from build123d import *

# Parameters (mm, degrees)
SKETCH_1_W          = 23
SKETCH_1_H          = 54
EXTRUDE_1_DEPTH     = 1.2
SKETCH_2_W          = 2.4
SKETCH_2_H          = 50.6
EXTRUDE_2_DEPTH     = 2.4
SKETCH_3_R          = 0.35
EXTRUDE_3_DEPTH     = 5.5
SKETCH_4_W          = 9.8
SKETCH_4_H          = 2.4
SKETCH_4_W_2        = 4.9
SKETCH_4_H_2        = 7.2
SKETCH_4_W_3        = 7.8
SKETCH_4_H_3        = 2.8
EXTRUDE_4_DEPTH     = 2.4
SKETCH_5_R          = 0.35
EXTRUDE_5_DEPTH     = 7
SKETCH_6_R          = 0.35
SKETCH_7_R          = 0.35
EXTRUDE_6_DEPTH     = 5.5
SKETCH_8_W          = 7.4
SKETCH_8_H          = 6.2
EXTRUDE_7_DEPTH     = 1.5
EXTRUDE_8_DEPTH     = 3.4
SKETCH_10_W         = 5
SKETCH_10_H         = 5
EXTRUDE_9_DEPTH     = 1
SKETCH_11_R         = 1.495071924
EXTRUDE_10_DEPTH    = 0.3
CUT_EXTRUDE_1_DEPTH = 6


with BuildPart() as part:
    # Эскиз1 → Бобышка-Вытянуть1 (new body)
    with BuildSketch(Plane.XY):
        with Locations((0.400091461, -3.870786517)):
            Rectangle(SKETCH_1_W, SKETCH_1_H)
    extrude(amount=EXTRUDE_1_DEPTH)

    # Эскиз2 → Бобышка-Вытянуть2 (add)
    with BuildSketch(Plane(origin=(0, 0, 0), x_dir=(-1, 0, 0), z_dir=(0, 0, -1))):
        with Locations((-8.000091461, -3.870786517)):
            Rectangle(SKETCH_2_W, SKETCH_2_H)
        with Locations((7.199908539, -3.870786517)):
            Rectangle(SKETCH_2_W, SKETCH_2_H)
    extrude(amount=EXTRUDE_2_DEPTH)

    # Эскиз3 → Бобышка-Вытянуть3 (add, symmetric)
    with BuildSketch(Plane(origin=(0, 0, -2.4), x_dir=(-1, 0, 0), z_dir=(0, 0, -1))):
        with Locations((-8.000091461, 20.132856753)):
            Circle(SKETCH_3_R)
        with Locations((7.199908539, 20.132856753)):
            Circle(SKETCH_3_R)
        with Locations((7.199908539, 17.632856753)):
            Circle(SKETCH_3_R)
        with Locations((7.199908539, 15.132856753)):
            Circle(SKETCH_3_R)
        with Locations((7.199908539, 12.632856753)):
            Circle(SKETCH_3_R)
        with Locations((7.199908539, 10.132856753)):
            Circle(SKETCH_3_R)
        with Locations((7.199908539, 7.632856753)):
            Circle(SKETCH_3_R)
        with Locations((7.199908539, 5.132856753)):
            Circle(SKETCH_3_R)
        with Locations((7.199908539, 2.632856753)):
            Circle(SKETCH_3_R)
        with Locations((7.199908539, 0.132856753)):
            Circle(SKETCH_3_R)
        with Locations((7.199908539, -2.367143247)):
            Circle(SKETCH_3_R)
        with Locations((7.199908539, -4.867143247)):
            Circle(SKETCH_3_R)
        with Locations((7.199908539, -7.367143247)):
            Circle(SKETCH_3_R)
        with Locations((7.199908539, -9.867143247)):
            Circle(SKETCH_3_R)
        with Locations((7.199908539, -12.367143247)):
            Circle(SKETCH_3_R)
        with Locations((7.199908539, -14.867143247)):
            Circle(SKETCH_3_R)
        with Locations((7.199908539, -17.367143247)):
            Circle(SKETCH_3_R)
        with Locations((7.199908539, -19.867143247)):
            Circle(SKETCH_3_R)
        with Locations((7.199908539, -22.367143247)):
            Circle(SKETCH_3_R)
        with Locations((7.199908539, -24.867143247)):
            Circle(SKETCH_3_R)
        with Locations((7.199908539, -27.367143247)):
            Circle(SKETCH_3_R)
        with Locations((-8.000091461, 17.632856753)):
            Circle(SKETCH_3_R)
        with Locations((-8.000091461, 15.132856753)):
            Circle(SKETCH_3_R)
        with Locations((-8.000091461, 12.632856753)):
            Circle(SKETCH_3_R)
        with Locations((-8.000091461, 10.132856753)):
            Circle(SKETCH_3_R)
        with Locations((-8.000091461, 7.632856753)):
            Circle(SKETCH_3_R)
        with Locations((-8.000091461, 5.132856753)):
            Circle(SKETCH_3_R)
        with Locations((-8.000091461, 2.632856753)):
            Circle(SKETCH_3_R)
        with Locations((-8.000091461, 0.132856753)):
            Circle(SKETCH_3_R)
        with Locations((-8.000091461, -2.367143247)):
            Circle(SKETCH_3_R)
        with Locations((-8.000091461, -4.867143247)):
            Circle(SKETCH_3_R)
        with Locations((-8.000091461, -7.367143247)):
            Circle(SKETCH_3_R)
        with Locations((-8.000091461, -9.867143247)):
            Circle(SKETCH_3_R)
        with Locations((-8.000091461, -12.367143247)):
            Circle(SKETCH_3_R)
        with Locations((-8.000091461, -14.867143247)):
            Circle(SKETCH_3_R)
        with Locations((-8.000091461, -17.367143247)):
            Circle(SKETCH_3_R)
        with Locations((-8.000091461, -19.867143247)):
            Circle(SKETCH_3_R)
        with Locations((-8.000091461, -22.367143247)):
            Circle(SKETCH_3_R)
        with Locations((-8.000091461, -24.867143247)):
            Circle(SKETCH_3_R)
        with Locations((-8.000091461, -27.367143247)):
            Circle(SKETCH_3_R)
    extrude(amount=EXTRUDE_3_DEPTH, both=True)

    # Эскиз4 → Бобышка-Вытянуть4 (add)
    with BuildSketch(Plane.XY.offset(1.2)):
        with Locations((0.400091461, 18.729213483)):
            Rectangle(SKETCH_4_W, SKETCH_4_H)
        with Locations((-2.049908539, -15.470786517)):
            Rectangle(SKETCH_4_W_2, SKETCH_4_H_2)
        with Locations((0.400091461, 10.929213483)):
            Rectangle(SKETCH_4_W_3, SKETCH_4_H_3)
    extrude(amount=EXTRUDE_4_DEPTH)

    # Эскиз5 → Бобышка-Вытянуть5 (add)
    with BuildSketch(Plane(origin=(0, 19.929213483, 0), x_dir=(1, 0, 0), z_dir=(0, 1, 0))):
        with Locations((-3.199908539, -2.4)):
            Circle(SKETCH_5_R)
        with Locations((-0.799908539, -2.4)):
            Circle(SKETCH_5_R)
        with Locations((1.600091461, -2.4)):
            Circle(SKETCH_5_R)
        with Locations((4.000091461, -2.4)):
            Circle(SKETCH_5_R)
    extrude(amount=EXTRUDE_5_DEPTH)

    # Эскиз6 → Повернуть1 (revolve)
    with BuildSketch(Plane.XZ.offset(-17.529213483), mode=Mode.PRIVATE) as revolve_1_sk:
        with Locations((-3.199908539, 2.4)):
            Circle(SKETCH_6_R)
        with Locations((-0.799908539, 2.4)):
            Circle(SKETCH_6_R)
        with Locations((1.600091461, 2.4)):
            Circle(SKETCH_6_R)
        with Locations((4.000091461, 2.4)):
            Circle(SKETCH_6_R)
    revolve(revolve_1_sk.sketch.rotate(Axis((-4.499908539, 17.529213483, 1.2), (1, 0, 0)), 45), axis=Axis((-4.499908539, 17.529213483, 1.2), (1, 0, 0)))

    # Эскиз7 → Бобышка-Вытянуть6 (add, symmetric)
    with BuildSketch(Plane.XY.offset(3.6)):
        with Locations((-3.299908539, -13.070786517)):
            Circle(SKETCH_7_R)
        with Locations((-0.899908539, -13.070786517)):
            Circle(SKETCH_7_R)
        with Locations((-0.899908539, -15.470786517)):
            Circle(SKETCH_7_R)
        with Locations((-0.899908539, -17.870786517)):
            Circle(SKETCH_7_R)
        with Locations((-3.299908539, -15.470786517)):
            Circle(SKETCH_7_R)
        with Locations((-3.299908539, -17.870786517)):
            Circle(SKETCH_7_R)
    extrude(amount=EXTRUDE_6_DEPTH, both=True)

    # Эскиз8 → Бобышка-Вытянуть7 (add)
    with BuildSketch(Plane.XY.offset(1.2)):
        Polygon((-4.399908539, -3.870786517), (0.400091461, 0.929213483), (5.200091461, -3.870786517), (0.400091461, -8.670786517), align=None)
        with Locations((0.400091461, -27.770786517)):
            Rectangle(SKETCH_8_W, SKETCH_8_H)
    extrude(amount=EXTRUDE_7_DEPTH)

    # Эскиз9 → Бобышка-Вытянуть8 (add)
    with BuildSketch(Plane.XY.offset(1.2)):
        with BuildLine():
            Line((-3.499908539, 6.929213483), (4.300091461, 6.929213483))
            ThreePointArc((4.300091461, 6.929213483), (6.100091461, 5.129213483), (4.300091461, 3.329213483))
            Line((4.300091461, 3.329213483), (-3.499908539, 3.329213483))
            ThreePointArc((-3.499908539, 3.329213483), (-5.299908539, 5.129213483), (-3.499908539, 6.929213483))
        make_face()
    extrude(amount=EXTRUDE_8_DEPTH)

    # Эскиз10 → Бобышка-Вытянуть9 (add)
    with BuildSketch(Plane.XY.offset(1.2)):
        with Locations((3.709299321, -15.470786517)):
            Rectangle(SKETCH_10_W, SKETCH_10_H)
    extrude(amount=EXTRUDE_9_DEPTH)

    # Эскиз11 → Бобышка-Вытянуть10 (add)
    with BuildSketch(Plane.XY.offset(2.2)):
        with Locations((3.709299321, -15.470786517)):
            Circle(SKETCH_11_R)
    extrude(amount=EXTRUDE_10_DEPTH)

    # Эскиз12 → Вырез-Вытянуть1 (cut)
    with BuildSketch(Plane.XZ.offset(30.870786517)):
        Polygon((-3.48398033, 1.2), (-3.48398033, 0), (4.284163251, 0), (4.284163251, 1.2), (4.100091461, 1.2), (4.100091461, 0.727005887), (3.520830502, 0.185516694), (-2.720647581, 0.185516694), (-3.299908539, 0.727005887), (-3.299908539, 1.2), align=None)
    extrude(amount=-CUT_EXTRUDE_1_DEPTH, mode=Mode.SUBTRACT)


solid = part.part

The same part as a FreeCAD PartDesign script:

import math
import FreeCAD as App
import Part
import Sketcher

V = App.Vector
Q = App.Units.Quantity


def add_polygon(sketch, points):
    """Adds a closed chain of lines whose ends are joined by coincident constraints."""
    first, n = sketch.GeometryCount, len(points)
    for a, b in zip(points, points[1:] + points[:1]):
        sketch.addGeometry(Part.LineSegment(App.Vector(*a, 0), App.Vector(*b, 0)), False)
    for i in range(n):
        sketch.addConstraint(Sketcher.Constraint("Coincident", first + i, 2, first + (i + 1) % n, 1))

doc = App.newDocument("Part")
body = doc.addObject("PartDesign::Body", "Body")

sketch1 = body.newObject("Sketcher::SketchObject", "Sketch")
sketch1.AttachmentSupport = (doc.getObject("XY_Plane"), [""])
sketch1.MapMode = "FlatFace"
add_polygon(sketch1, [(-11, 23), (-11, -31), (12, -31), (12, 23)])
sketch1.addConstraint([
    Sketcher.Constraint("Vertical", 0),
    Sketcher.Constraint("Horizontal", 1),
    Sketcher.Constraint("Vertical", 2),
    Sketcher.Constraint("Horizontal", 3),
    Sketcher.Constraint("DistanceX", 1, 1, 1, 2, Q("23 mm")),
    Sketcher.Constraint("DistanceY", 0, 2, 0, 1, Q("54 mm")),
    Sketcher.Constraint("DistanceX", 0, 2, -1, 1, Q("11.099909 mm")),
    Sketcher.Constraint("DistanceY", 0, 2, -1, 1, Q("30.870787 mm")),
])
pad1 = body.newObject("PartDesign::Pad", "Pad")
pad1.Profile = sketch1
pad1.Length = 1.2

sketch2 = body.newObject("Sketcher::SketchObject", "Sketch001")
sketch2.AttachmentSupport = (doc.getObject("XY_Plane"), [""])
sketch2.MapMode = "FlatFace"
add_polygon(sketch2, [(9.2, 21.4), (9.2, -29.2), (6.8, -29.2), (6.8, 21.4)])
add_polygon(sketch2, [(-6, 21.4), (-6, -29.2), (-8.4, -29.2), (-8.4, 21.4)])
sketch2.addConstraint([
    Sketcher.Constraint("Vertical", 0),
    Sketcher.Constraint("Horizontal", 1),
    Sketcher.Constraint("Vertical", 2),
    Sketcher.Constraint("Horizontal", 3),
    Sketcher.Constraint("Vertical", 4),
    Sketcher.Constraint("Horizontal", 5),
    Sketcher.Constraint("Vertical", 6),
    Sketcher.Constraint("Horizontal", 7),
    Sketcher.Constraint("Horizontal", 1, 2, 4, 2),
    Sketcher.Constraint("Horizontal", 3, 2, 6, 2),
    Sketcher.Constraint("Equal", 3, 5),
    Sketcher.Constraint("DistanceX", 1, 2, 1, 1, Q("2.4 mm")),
    Sketcher.Constraint("DistanceY", 0, 2, 0, 1, Q("50.6 mm")),
    Sketcher.Constraint("DistanceX", 4, 2, 1, 2, Q("12.8 mm")),
    Sketcher.Constraint("DistanceX", -1, 1, 0, 2, Q("9.200091 mm")),
    Sketcher.Constraint("DistanceY", 0, 2, -1, 1, Q("29.170787 mm")),
])
pad2 = body.newObject("PartDesign::Pad", "Pad001")
pad2.Profile = sketch2
pad2.Length = 2.4
pad2.Reversed = True

sketch3 = body.newObject("Sketcher::SketchObject", "Sketch002")
sketch3.AttachmentSupport = (doc.getObject("XY_Plane"), [""])
sketch3.MapMode = "FlatFace"
sketch3.AttachmentOffset = App.Placement(V(0, 0, -2.4), App.Rotation())
sketch3.addGeometry([
    Part.Circle(V(8, 20.13, 0), V(0, 0, 1), 0.35),
    Part.Circle(V(-7.2, 20.13, 0), V(0, 0, 1), 0.35),
    Part.Circle(V(-7.2, 17.63, 0), V(0, 0, 1), 0.35),
    Part.Circle(V(-7.2, 15.13, 0), V(0, 0, 1), 0.35),
    Part.Circle(V(-7.2, 12.63, 0), V(0, 0, 1), 0.35),
    Part.Circle(V(-7.2, 10.13, 0), V(0, 0, 1), 0.35),
    Part.Circle(V(-7.2, 7.63, 0), V(0, 0, 1), 0.35),
    Part.Circle(V(-7.2, 5.13, 0), V(0, 0, 1), 0.35),
    Part.Circle(V(-7.2, 2.63, 0), V(0, 0, 1), 0.35),
    Part.Circle(V(-7.2, 0.13, 0), V(0, 0, 1), 0.35),
    Part.Circle(V(-7.2, -2.37, 0), V(0, 0, 1), 0.35),
    Part.Circle(V(-7.2, -4.87, 0), V(0, 0, 1), 0.35),
    Part.Circle(V(-7.2, -7.37, 0), V(0, 0, 1), 0.35),
    Part.Circle(V(-7.2, -9.87, 0), V(0, 0, 1), 0.35),
    Part.Circle(V(-7.2, -12.37, 0), V(0, 0, 1), 0.35),
    Part.Circle(V(-7.2, -14.87, 0), V(0, 0, 1), 0.35),
    Part.Circle(V(-7.2, -17.37, 0), V(0, 0, 1), 0.35),
    Part.Circle(V(-7.2, -19.87, 0), V(0, 0, 1), 0.35),
    Part.Circle(V(-7.2, -22.37, 0), V(0, 0, 1), 0.35),
    Part.Circle(V(-7.2, -24.87, 0), V(0, 0, 1), 0.35),
    Part.Circle(V(-7.2, -27.37, 0), V(0, 0, 1), 0.35),
    Part.Circle(V(8, 17.63, 0), V(0, 0, 1), 0.35),
    Part.Circle(V(8, 15.13, 0), V(0, 0, 1), 0.35),
    Part.Circle(V(8, 12.63, 0), V(0, 0, 1), 0.35),
    Part.Circle(V(8, 10.13, 0), V(0, 0, 1), 0.35),
    Part.Circle(V(8, 7.63, 0), V(0, 0, 1), 0.35),
    Part.Circle(V(8, 5.13, 0), V(0, 0, 1), 0.35),
    Part.Circle(V(8, 2.63, 0), V(0, 0, 1), 0.35),
    Part.Circle(V(8, 0.13, 0), V(0, 0, 1), 0.35),
    Part.Circle(V(8, -2.37, 0), V(0, 0, 1), 0.35),
    Part.Circle(V(8, -4.87, 0), V(0, 0, 1), 0.35),
    Part.Circle(V(8, -7.37, 0), V(0, 0, 1), 0.35),
    Part.Circle(V(8, -9.87, 0), V(0, 0, 1), 0.35),
    Part.Circle(V(8, -12.37, 0), V(0, 0, 1), 0.35),
    Part.Circle(V(8, -14.87, 0), V(0, 0, 1), 0.35),
    Part.Circle(V(8, -17.37, 0), V(0, 0, 1), 0.35),
    Part.Circle(V(8, -19.87, 0), V(0, 0, 1), 0.35),
    Part.Circle(V(8, -22.37, 0), V(0, 0, 1), 0.35),
    Part.Circle(V(8, -24.87, 0), V(0, 0, 1), 0.35),
    Part.Circle(V(8, -27.37, 0), V(0, 0, 1), 0.35),
], False)
sketch3.addConstraint([
    Sketcher.Constraint("Equal", 0, 1),
    Sketcher.Constraint("Equal", 1, 2),
    Sketcher.Constraint("Equal", 2, 3),
    Sketcher.Constraint("Equal", 3, 4),
    Sketcher.Constraint("Equal", 4, 5),
    Sketcher.Constraint("Equal", 5, 6),
    Sketcher.Constraint("Equal", 6, 7),
    Sketcher.Constraint("Equal", 7, 8),
    Sketcher.Constraint("Equal", 8, 9),
    Sketcher.Constraint("Equal", 9, 10),
    Sketcher.Constraint("Equal", 10, 11),
    Sketcher.Constraint("Equal", 11, 12),
    Sketcher.Constraint("Equal", 12, 13),
    Sketcher.Constraint("Equal", 13, 14),
    Sketcher.Constraint("Equal", 14, 15),
    Sketcher.Constraint("Equal", 15, 16),
    Sketcher.Constraint("Equal", 16, 17),
    Sketcher.Constraint("Equal", 17, 18),
    Sketcher.Constraint("Equal", 18, 19),
    Sketcher.Constraint("Equal", 19, 20),
    Sketcher.Constraint("Equal", 20, 21),
    Sketcher.Constraint("Equal", 21, 22),
    Sketcher.Constraint("Equal", 22, 23),
    Sketcher.Constraint("Equal", 23, 24),
    Sketcher.Constraint("Equal", 24, 25),
    Sketcher.Constraint("Equal", 25, 26),
    Sketcher.Constraint("Equal", 26, 27),
    Sketcher.Constraint("Equal", 27, 28),
    Sketcher.Constraint("Equal", 28, 29),
    Sketcher.Constraint("Equal", 29, 30),
    Sketcher.Constraint("Equal", 30, 31),
    Sketcher.Constraint("Equal", 31, 32),
    Sketcher.Constraint("Equal", 32, 33),
    Sketcher.Constraint("Equal", 33, 34),
    Sketcher.Constraint("Equal", 34, 35),
    Sketcher.Constraint("Equal", 35, 36),
    Sketcher.Constraint("Equal", 36, 37),
    Sketcher.Constraint("Equal", 37, 38),
    Sketcher.Constraint("Equal", 38, 39),
    Sketcher.Constraint("Horizontal", 0, 3, 1, 3),
    Sketcher.Constraint("Horizontal", 2, 3, 21, 3),
    Sketcher.Constraint("Horizontal", 3, 3, 22, 3),
    Sketcher.Constraint("Horizontal", 4, 3, 23, 3),
    Sketcher.Constraint("Horizontal", 5, 3, 24, 3),
    Sketcher.Constraint("Horizontal", 6, 3, 25, 3),
    Sketcher.Constraint("Horizontal", 7, 3, 26, 3),
    Sketcher.Constraint("Horizontal", 8, 3, 27, 3),
    Sketcher.Constraint("Horizontal", 9, 3, 28, 3),
    Sketcher.Constraint("Horizontal", 10, 3, 29, 3),
    Sketcher.Constraint("Horizontal", 11, 3, 30, 3),
    Sketcher.Constraint("Horizontal", 12, 3, 31, 3),
    Sketcher.Constraint("Horizontal", 13, 3, 32, 3),
    Sketcher.Constraint("Horizontal", 14, 3, 33, 3),
    Sketcher.Constraint("Horizontal", 15, 3, 34, 3),
    Sketcher.Constraint("Horizontal", 16, 3, 35, 3),
    Sketcher.Constraint("Horizontal", 17, 3, 36, 3),
    Sketcher.Constraint("Horizontal", 18, 3, 37, 3),
    Sketcher.Constraint("Horizontal", 19, 3, 38, 3),
    Sketcher.Constraint("Horizontal", 20, 3, 39, 3),
    Sketcher.Constraint("Vertical", 1, 3, 2, 3),
    Sketcher.Constraint("Vertical", 2, 3, 3, 3),
    Sketcher.Constraint("Vertical", 3, 3, 4, 3),
    Sketcher.Constraint("Vertical", 4, 3, 5, 3),
    Sketcher.Constraint("Vertical", 5, 3, 6, 3),
    Sketcher.Constraint("Vertical", 6, 3, 7, 3),
    Sketcher.Constraint("Vertical", 7, 3, 8, 3),
    Sketcher.Constraint("Vertical", 8, 3, 9, 3),
    Sketcher.Constraint("Vertical", 9, 3, 10, 3),
    Sketcher.Constraint("Vertical", 10, 3, 11, 3),
    Sketcher.Constraint("Vertical", 11, 3, 12, 3),
    Sketcher.Constraint("Vertical", 12, 3, 13, 3),
    Sketcher.Constraint("Vertical", 13, 3, 14, 3),
    Sketcher.Constraint("Vertical", 14, 3, 15, 3),
    Sketcher.Constraint("Vertical", 15, 3, 16, 3),
    Sketcher.Constraint("Vertical", 16, 3, 17, 3),
    Sketcher.Constraint("Vertical", 17, 3, 18, 3),
    Sketcher.Constraint("Vertical", 18, 3, 19, 3),
    Sketcher.Constraint("Vertical", 19, 3, 20, 3),
    Sketcher.Constraint("Vertical", 0, 3, 21, 3),
    Sketcher.Constraint("Vertical", 21, 3, 22, 3),
    Sketcher.Constraint("Vertical", 22, 3, 23, 3),
    Sketcher.Constraint("Vertical", 23, 3, 24, 3),
    Sketcher.Constraint("Vertical", 24, 3, 25, 3),
    Sketcher.Constraint("Vertical", 25, 3, 26, 3),
    Sketcher.Constraint("Vertical", 26, 3, 27, 3),
    Sketcher.Constraint("Vertical", 27, 3, 28, 3),
    Sketcher.Constraint("Vertical", 28, 3, 29, 3),
    Sketcher.Constraint("Vertical", 29, 3, 30, 3),
    Sketcher.Constraint("Vertical", 30, 3, 31, 3),
    Sketcher.Constraint("Vertical", 31, 3, 32, 3),
    Sketcher.Constraint("Vertical", 32, 3, 33, 3),
    Sketcher.Constraint("Vertical", 33, 3, 34, 3),
    Sketcher.Constraint("Vertical", 34, 3, 35, 3),
    Sketcher.Constraint("Vertical", 35, 3, 36, 3),
    Sketcher.Constraint("Vertical", 36, 3, 37, 3),
    Sketcher.Constraint("Vertical", 37, 3, 38, 3),
    Sketcher.Constraint("Vertical", 38, 3, 39, 3),
    Sketcher.Constraint("Diameter", 0, Q("0.7 mm")),
    Sketcher.Constraint("DistanceY", 3, 3, 1, 3, Q("5 mm")),
    Sketcher.Constraint("DistanceY", 4, 3, 2, 3, Q("5 mm")),
    Sketcher.Constraint("DistanceY", 5, 3, 3, 3, Q("5 mm")),
    Sketcher.Constraint("DistanceY", 6, 3, 4, 3, Q("5 mm")),
    Sketcher.Constraint("DistanceY", 7, 3, 5, 3, Q("5 mm")),
    Sketcher.Constraint("DistanceY", 8, 3, 6, 3, Q("5 mm")),
    Sketcher.Constraint("DistanceY", 9, 3, 7, 3, Q("5 mm")),
    Sketcher.Constraint("DistanceY", 10, 3, 8, 3, Q("5 mm")),
    Sketcher.Constraint("DistanceY", 11, 3, 9, 3, Q("5 mm")),
    Sketcher.Constraint("DistanceY", 12, 3, 10, 3, Q("5 mm")),
    Sketcher.Constraint("DistanceY", 13, 3, 11, 3, Q("5 mm")),
    Sketcher.Constraint("DistanceY", 14, 3, 12, 3, Q("5 mm")),
    Sketcher.Constraint("DistanceY", 15, 3, 13, 3, Q("5 mm")),
    Sketcher.Constraint("DistanceY", 16, 3, 14, 3, Q("5 mm")),
    Sketcher.Constraint("DistanceY", 17, 3, 15, 3, Q("5 mm")),
    Sketcher.Constraint("DistanceY", 18, 3, 16, 3, Q("5 mm")),
    Sketcher.Constraint("DistanceY", 19, 3, 17, 3, Q("5 mm")),
    Sketcher.Constraint("DistanceY", 20, 3, 18, 3, Q("5 mm")),
    Sketcher.Constraint("DistanceX", 1, 3, 0, 3, Q("15.2 mm")),
    Sketcher.Constraint("DistanceY", 2, 3, 1, 3, Q("2.5 mm")),
    Sketcher.Constraint("DistanceX", -1, 1, 0, 3, Q("8.000091 mm")),
    Sketcher.Constraint("DistanceY", -1, 1, 0, 3, Q("20.132857 mm")),
])
pad3 = body.newObject("PartDesign::Pad", "Pad002")
pad3.Profile = sketch3
pad3.Length = 11
pad3.Midplane = True

sketch4 = body.newObject("Sketcher::SketchObject", "Sketch003")
sketch4.AttachmentSupport = (doc.getObject("XY_Plane"), [""])
sketch4.MapMode = "FlatFace"
sketch4.AttachmentOffset = App.Placement(V(0, 0, 1.2), App.Rotation())
add_polygon(sketch4, [(-4.5, 19.9), (-4.5, 17.5), (5.3, 17.5), (5.3, 19.9)])
add_polygon(sketch4, [(-4.5, -11.9), (-4.5, -19.1), (0.4, -19.1), (0.4, -11.9)])
add_polygon(sketch4, [(-3.5, 12.3), (-3.5, 9.5), (4.3, 9.5), (4.3, 12.3)])
sketch4.addConstraint([
    Sketcher.Constraint("Vertical", 0),
    Sketcher.Constraint("Horizontal", 1),
    Sketcher.Constraint("Vertical", 2),
    Sketcher.Constraint("Horizontal", 3),
    Sketcher.Constraint("Vertical", 4),
    Sketcher.Constraint("Horizontal", 5),
    Sketcher.Constraint("Vertical", 6),
    Sketcher.Constraint("Horizontal", 7),
    Sketcher.Constraint("Vertical", 8),
    Sketcher.Constraint("Horizontal", 9),
    Sketcher.Constraint("Vertical", 10),
    Sketcher.Constraint("Horizontal", 11),
    Sketcher.Constraint("Vertical", 3, 2, 4, 2),
    Sketcher.Constraint("DistanceX", 1, 1, 1, 2, Q("9.8 mm")),
    Sketcher.Constraint("DistanceX", 5, 1, 5, 2, Q("4.9 mm")),
    Sketcher.Constraint("DistanceX", 9, 1, 9, 2, Q("7.8 mm")),
    Sketcher.Constraint("DistanceY", 0, 2, 0, 1, Q("2.4 mm")),
    Sketcher.Constraint("DistanceY", 4, 2, 4, 1, Q("7.2 mm")),
    Sketcher.Constraint("DistanceY", 8, 2, 8, 1, Q("2.8 mm")),
    Sketcher.Constraint("DistanceY", 4, 2, 3, 2, Q("39 mm")),
    Sketcher.Constraint("DistanceX", 0, 2, 8, 2, Q("1 mm")),
    Sketcher.Constraint("DistanceY", 8, 2, 0, 2, Q("8 mm")),
    Sketcher.Constraint("DistanceX", 0, 2, -1, 1, Q("4.499909 mm")),
    Sketcher.Constraint("DistanceY", -1, 1, 0, 2, Q("17.529213 mm")),
])
pad4 = body.newObject("PartDesign::Pad", "Pad003")
pad4.Profile = sketch4
pad4.Length = 2.4

sketch5 = body.newObject("Sketcher::SketchObject", "Sketch004")
sketch5.AttachmentSupport = (doc.getObject("XZ_Plane"), [""])
sketch5.MapMode = "FlatFace"
sketch5.AttachmentOffset = App.Placement(V(0, 0, -19.929213), App.Rotation())
sketch5.addGeometry([
    Part.Circle(V(-3.2, 2.4, 0), V(0, 0, 1), 0.35),
    Part.Circle(V(-0.8, 2.4, 0), V(0, 0, 1), 0.35),
    Part.Circle(V(1.6, 2.4, 0), V(0, 0, 1), 0.35),
    Part.Circle(V(4, 2.4, 0), V(0, 0, 1), 0.35),
], False)
sketch5.addConstraint([
    Sketcher.Constraint("Equal", 0, 1),
    Sketcher.Constraint("Equal", 1, 2),
    Sketcher.Constraint("Equal", 2, 3),
    Sketcher.Constraint("Horizontal", 0, 3, 1, 3),
    Sketcher.Constraint("Horizontal", 1, 3, 2, 3),
    Sketcher.Constraint("Horizontal", 2, 3, 3, 3),
    Sketcher.Constraint("Diameter", 0, Q("0.7 mm")),
    Sketcher.Constraint("DistanceY", -1, 1, 0, 3, Q("2.4 mm")),
    Sketcher.Constraint("DistanceX", 0, 3, 1, 3, Q("2.4 mm")),
    Sketcher.Constraint("DistanceX", 1, 3, 2, 3, Q("2.4 mm")),
    Sketcher.Constraint("DistanceX", 2, 3, 3, 3, Q("2.4 mm")),
    Sketcher.Constraint("DistanceX", 0, 3, -1, 1, Q("3.199909 mm")),
])
pad5 = body.newObject("PartDesign::Pad", "Pad004")
pad5.Profile = sketch5
pad5.Length = 7
pad5.Reversed = True

sketch6 = body.newObject("Sketcher::SketchObject", "Sketch005")
sketch6.AttachmentSupport = (doc.getObject("XZ_Plane"), [""])
sketch6.MapMode = "FlatFace"
sketch6.AttachmentOffset = App.Placement(V(0, 0, -17.529213), App.Rotation())
sketch6.addGeometry([
    Part.Circle(V(-3.2, 2.4, 0), V(0, 0, 1), 0.35),
    Part.Circle(V(-0.8, 2.4, 0), V(0, 0, 1), 0.35),
    Part.Circle(V(1.6, 2.4, 0), V(0, 0, 1), 0.35),
    Part.Circle(V(4, 2.4, 0), V(0, 0, 1), 0.35),
], False)
sketch6.addGeometry(Part.LineSegment(V(-3.2, 1.2, 0), V(4, 1.2, 0)), True)
sketch6.addConstraint([
    Sketcher.Constraint("Horizontal", 4),
    Sketcher.Constraint("Equal", 0, 1),
    Sketcher.Constraint("Equal", 1, 2),
    Sketcher.Constraint("Equal", 2, 3),
    Sketcher.Constraint("Horizontal", 0, 3, 1, 3),
    Sketcher.Constraint("Horizontal", 1, 3, 2, 3),
    Sketcher.Constraint("Horizontal", 2, 3, 3, 3),
    Sketcher.Constraint("Vertical", 0, 3, 4, 1),
    Sketcher.Constraint("Vertical", 3, 3, 4, 2),
    Sketcher.Constraint("Diameter", 0, Q("0.7 mm")),
    Sketcher.Constraint("DistanceX", 4, 1, 4, 2, Q("7.2 mm")),
    Sketcher.Constraint("DistanceY", -1, 1, 0, 3, Q("2.4 mm")),
    Sketcher.Constraint("DistanceY", -1, 1, 4, 1, Q("1.2 mm")),
    Sketcher.Constraint("DistanceX", 0, 3, 1, 3, Q("2.4 mm")),
    Sketcher.Constraint("DistanceX", 1, 3, 2, 3, Q("2.4 mm")),
    Sketcher.Constraint("DistanceX", 0, 3, -1, 1, Q("3.199909 mm")),
])
revolution = body.newObject("PartDesign::Revolution", "Revolution")
revolution.Profile = sketch6
revolution.ReferenceAxis = (sketch6, ["Axis0"])
revolution.Angle = 360

sketch7 = body.newObject("Sketcher::SketchObject", "Sketch006")
sketch7.AttachmentSupport = (doc.getObject("XY_Plane"), [""])
sketch7.MapMode = "FlatFace"
sketch7.AttachmentOffset = App.Placement(V(0, 0, 3.6), App.Rotation())
sketch7.addGeometry([
    Part.Circle(V(-3.3, -13.07, 0), V(0, 0, 1), 0.35),
    Part.Circle(V(-0.9, -13.07, 0), V(0, 0, 1), 0.35),
    Part.Circle(V(-0.9, -15.47, 0), V(0, 0, 1), 0.35),
    Part.Circle(V(-0.9, -17.87, 0), V(0, 0, 1), 0.35),
    Part.Circle(V(-3.3, -15.47, 0), V(0, 0, 1), 0.35),
    Part.Circle(V(-3.3, -17.87, 0), V(0, 0, 1), 0.35),
], False)
sketch7.addConstraint([
    Sketcher.Constraint("Equal", 0, 1),
    Sketcher.Constraint("Equal", 1, 2),
    Sketcher.Constraint("Equal", 2, 3),
    Sketcher.Constraint("Equal", 3, 4),
    Sketcher.Constraint("Equal", 4, 5),
    Sketcher.Constraint("Horizontal", 0, 3, 1, 3),
    Sketcher.Constraint("Horizontal", 2, 3, 4, 3),
    Sketcher.Constraint("Horizontal", 3, 3, 5, 3),
    Sketcher.Constraint("Vertical", 1, 3, 2, 3),
    Sketcher.Constraint("Vertical", 2, 3, 3, 3),
    Sketcher.Constraint("Vertical", 0, 3, 4, 3),
    Sketcher.Constraint("Vertical", 4, 3, 5, 3),
    Sketcher.Constraint("Diameter", 0, Q("0.7 mm")),
    Sketcher.Constraint("DistanceX", 0, 3, 1, 3, Q("2.4 mm")),
    Sketcher.Constraint("DistanceY", 2, 3, 1, 3, Q("2.4 mm")),
    Sketcher.Constraint("DistanceY", 3, 3, 2, 3, Q("2.4 mm")),
    Sketcher.Constraint("DistanceX", 0, 3, -1, 1, Q("3.299909 mm")),
    Sketcher.Constraint("DistanceY", 0, 3, -1, 1, Q("13.070787 mm")),
])
pad6 = body.newObject("PartDesign::Pad", "Pad005")
pad6.Profile = sketch7
pad6.Length = 11
pad6.Midplane = True

sketch8 = body.newObject("Sketcher::SketchObject", "Sketch007")
sketch8.AttachmentSupport = (doc.getObject("XY_Plane"), [""])
sketch8.MapMode = "FlatFace"
sketch8.AttachmentOffset = App.Placement(V(0, 0, 1.2), App.Rotation())
add_polygon(sketch8, [(0, 1), (-4, -4), (0, -9), (5, -4)])
add_polygon(sketch8, [(-3, -25), (-3, -31), (4, -31), (4, -25)])
sketch8.addConstraint([
    Sketcher.Constraint("Vertical", 4),
    Sketcher.Constraint("Horizontal", 5),
    Sketcher.Constraint("Vertical", 6),
    Sketcher.Constraint("Horizontal", 7),
    Sketcher.Constraint("Perpendicular", 0, 1),
    Sketcher.Constraint("Perpendicular", 1, 2),
    Sketcher.Constraint("Perpendicular", 2, 3),
    Sketcher.Constraint("Horizontal", 0, 2, 2, 2),
    Sketcher.Constraint("Vertical", 1, 2, 3, 2),
    Sketcher.Constraint("DistanceX", 5, 1, 5, 2, Q("7.4 mm")),
    Sketcher.Constraint("DistanceY", 4, 2, 4, 1, Q("6.2 mm")),
    Sketcher.Constraint("DistanceY", 4, 2, 0, 2, Q("27 mm")),
    Sketcher.Constraint("DistanceY", 6, 2, 1, 2, Q("16 mm")),
    Sketcher.Constraint("DistanceX", 4, 2, 1, 2, Q("3.7 mm")),
    Sketcher.Constraint("DistanceX", 0, 2, -1, 1, Q("4.399909 mm")),
    Sketcher.Constraint("DistanceY", 0, 2, -1, 1, Q("3.870787 mm")),
])
pad7 = body.newObject("PartDesign::Pad", "Pad006")
pad7.Profile = sketch8
pad7.Length = 1.5

sketch9 = body.newObject("Sketcher::SketchObject", "Sketch008")
sketch9.AttachmentSupport = (doc.getObject("XY_Plane"), [""])
sketch9.MapMode = "FlatFace"
sketch9.AttachmentOffset = App.Placement(V(0, 0, 1.2), App.Rotation())
sketch9.addGeometry([
    Part.LineSegment(V(4.3, 6.9, 0), V(-3.5, 6.9, 0)),
    Part.ArcOfCircle(Part.Circle(V(-3.5, 5.1, 0), V(0, 0, 1), 1.8), math.radians(90), math.radians(270)),
    Part.LineSegment(V(-3.5, 3.3, 0), V(4.3, 3.3, 0)),
    Part.ArcOfCircle(Part.Circle(V(4.3, 5.1, 0), V(0, 0, 1), 1.8), math.radians(-90), math.radians(90)),
], False)
sketch9.addConstraint([
    Sketcher.Constraint("Tangent", 0, 2, 1, 1),
    Sketcher.Constraint("Tangent", 1, 2, 2, 1),
    Sketcher.Constraint("Tangent", 2, 2, 3, 1),
    Sketcher.Constraint("Tangent", 3, 2, 0, 1),
    Sketcher.Constraint("Horizontal", 0),
    Sketcher.Constraint("Horizontal", 2),
    Sketcher.Constraint("Radius", 1, Q("1.8 mm")),
    Sketcher.Constraint("DistanceX", 0, 2, 0, 1, Q("7.8 mm")),
    Sketcher.Constraint("DistanceX", 1, 3, -1, 1, Q("3.499909 mm")),
    Sketcher.Constraint("DistanceY", -1, 1, 1, 3, Q("5.129213 mm")),
])
pad8 = body.newObject("PartDesign::Pad", "Pad007")
pad8.Profile = sketch9
pad8.Length = 3.4

sketch10 = body.newObject("Sketcher::SketchObject", "Sketch009")
sketch10.AttachmentSupport = (doc.getObject("XY_Plane"), [""])
sketch10.MapMode = "FlatFace"
sketch10.AttachmentOffset = App.Placement(V(0, 0, 1.2), App.Rotation())
add_polygon(sketch10, [(1, -13), (1, -18), (6, -18), (6, -13)])
sketch10.addConstraint([
    Sketcher.Constraint("Vertical", 0),
    Sketcher.Constraint("Horizontal", 1),
    Sketcher.Constraint("Vertical", 2),
    Sketcher.Constraint("Horizontal", 3),
    Sketcher.Constraint("Equal", 3, 0),
    Sketcher.Constraint("DistanceX", 1, 1, 1, 2, Q("5 mm")),
    Sketcher.Constraint("DistanceX", -1, 1, 0, 2, Q("1.209299 mm")),
    Sketcher.Constraint("DistanceY", 0, 2, -1, 1, Q("17.970787 mm")),
])
pad9 = body.newObject("PartDesign::Pad", "Pad008")
pad9.Profile = sketch10
pad9.Length = 1

sketch11 = body.newObject("Sketcher::SketchObject", "Sketch010")
sketch11.AttachmentSupport = (doc.getObject("XY_Plane"), [""])
sketch11.MapMode = "FlatFace"
sketch11.AttachmentOffset = App.Placement(V(0, 0, 2.2), App.Rotation())
sketch11.addGeometry(Part.Circle(V(3.7, -15.5, 0), V(0, 0, 1), 1.5), False)
sketch11.addConstraint([
    Sketcher.Constraint("Diameter", 0, Q("2.990144 mm")),
    Sketcher.Constraint("DistanceX", -1, 1, 0, 3, Q("3.709299 mm")),
    Sketcher.Constraint("DistanceY", 0, 3, -1, 1, Q("15.470787 mm")),
])
pad10 = body.newObject("PartDesign::Pad", "Pad009")
pad10.Profile = sketch11
pad10.Length = 0.3

sketch12 = body.newObject("Sketcher::SketchObject", "Sketch011")
sketch12.AttachmentSupport = (doc.getObject("XZ_Plane"), [""])
sketch12.MapMode = "FlatFace"
sketch12.AttachmentOffset = App.Placement(V(0, 0, 30.870787), App.Rotation())
add_polygon(sketch12, [(-3.48, 1.2), (-3.48, 0), (4.28, 0), (4.28, 1.2), (4.1, 1.2), (4.1, 0.73), (3.52, 0.19), (-2.72, 0.19), (-3.3, 0.73), (-3.3, 1.2)])
sketch12.addConstraint([
    Sketcher.Constraint("Vertical", 0),
    Sketcher.Constraint("Horizontal", 1),
    Sketcher.Constraint("Vertical", 2),
    Sketcher.Constraint("Horizontal", 3),
    Sketcher.Constraint("Vertical", 4),
    Sketcher.Constraint("Horizontal", 6),
    Sketcher.Constraint("Vertical", 8),
    Sketcher.Constraint("Horizontal", 9),
    Sketcher.Constraint("PointOnObject", 0, 2, -1),
    Sketcher.Constraint("Horizontal", 4, 2, 7, 2),
    Sketcher.Constraint("Horizontal", 3, 2, 8, 2),
    Sketcher.Constraint("Equal", 3, 9),
    Sketcher.Constraint("Equal", 5, 7),
    Sketcher.Constraint("DistanceY", 0, 2, 0, 1, Q("1.2 mm")),
    Sketcher.Constraint("DistanceX", 7, 2, 4, 2, Q("7.4 mm")),
    Sketcher.Constraint("DistanceX", 3, 2, 3, 1, Q("0.184072 mm")),
    Sketcher.Constraint("DistanceX", 6, 2, 6, 1, Q("6.241478 mm")),
    Sketcher.Constraint("Distance", 5, Q("0.79294 mm")),
    Sketcher.Constraint("DistanceY", 4, 2, 4, 1, Q("0.472994 mm")),
    Sketcher.Constraint("DistanceX", 0, 2, -1, 1, Q("3.48398 mm")),
])
pocket1 = body.newObject("PartDesign::Pocket", "Pocket")
pocket1.Profile = sketch12
pocket1.Length = 6

doc.recompute()
